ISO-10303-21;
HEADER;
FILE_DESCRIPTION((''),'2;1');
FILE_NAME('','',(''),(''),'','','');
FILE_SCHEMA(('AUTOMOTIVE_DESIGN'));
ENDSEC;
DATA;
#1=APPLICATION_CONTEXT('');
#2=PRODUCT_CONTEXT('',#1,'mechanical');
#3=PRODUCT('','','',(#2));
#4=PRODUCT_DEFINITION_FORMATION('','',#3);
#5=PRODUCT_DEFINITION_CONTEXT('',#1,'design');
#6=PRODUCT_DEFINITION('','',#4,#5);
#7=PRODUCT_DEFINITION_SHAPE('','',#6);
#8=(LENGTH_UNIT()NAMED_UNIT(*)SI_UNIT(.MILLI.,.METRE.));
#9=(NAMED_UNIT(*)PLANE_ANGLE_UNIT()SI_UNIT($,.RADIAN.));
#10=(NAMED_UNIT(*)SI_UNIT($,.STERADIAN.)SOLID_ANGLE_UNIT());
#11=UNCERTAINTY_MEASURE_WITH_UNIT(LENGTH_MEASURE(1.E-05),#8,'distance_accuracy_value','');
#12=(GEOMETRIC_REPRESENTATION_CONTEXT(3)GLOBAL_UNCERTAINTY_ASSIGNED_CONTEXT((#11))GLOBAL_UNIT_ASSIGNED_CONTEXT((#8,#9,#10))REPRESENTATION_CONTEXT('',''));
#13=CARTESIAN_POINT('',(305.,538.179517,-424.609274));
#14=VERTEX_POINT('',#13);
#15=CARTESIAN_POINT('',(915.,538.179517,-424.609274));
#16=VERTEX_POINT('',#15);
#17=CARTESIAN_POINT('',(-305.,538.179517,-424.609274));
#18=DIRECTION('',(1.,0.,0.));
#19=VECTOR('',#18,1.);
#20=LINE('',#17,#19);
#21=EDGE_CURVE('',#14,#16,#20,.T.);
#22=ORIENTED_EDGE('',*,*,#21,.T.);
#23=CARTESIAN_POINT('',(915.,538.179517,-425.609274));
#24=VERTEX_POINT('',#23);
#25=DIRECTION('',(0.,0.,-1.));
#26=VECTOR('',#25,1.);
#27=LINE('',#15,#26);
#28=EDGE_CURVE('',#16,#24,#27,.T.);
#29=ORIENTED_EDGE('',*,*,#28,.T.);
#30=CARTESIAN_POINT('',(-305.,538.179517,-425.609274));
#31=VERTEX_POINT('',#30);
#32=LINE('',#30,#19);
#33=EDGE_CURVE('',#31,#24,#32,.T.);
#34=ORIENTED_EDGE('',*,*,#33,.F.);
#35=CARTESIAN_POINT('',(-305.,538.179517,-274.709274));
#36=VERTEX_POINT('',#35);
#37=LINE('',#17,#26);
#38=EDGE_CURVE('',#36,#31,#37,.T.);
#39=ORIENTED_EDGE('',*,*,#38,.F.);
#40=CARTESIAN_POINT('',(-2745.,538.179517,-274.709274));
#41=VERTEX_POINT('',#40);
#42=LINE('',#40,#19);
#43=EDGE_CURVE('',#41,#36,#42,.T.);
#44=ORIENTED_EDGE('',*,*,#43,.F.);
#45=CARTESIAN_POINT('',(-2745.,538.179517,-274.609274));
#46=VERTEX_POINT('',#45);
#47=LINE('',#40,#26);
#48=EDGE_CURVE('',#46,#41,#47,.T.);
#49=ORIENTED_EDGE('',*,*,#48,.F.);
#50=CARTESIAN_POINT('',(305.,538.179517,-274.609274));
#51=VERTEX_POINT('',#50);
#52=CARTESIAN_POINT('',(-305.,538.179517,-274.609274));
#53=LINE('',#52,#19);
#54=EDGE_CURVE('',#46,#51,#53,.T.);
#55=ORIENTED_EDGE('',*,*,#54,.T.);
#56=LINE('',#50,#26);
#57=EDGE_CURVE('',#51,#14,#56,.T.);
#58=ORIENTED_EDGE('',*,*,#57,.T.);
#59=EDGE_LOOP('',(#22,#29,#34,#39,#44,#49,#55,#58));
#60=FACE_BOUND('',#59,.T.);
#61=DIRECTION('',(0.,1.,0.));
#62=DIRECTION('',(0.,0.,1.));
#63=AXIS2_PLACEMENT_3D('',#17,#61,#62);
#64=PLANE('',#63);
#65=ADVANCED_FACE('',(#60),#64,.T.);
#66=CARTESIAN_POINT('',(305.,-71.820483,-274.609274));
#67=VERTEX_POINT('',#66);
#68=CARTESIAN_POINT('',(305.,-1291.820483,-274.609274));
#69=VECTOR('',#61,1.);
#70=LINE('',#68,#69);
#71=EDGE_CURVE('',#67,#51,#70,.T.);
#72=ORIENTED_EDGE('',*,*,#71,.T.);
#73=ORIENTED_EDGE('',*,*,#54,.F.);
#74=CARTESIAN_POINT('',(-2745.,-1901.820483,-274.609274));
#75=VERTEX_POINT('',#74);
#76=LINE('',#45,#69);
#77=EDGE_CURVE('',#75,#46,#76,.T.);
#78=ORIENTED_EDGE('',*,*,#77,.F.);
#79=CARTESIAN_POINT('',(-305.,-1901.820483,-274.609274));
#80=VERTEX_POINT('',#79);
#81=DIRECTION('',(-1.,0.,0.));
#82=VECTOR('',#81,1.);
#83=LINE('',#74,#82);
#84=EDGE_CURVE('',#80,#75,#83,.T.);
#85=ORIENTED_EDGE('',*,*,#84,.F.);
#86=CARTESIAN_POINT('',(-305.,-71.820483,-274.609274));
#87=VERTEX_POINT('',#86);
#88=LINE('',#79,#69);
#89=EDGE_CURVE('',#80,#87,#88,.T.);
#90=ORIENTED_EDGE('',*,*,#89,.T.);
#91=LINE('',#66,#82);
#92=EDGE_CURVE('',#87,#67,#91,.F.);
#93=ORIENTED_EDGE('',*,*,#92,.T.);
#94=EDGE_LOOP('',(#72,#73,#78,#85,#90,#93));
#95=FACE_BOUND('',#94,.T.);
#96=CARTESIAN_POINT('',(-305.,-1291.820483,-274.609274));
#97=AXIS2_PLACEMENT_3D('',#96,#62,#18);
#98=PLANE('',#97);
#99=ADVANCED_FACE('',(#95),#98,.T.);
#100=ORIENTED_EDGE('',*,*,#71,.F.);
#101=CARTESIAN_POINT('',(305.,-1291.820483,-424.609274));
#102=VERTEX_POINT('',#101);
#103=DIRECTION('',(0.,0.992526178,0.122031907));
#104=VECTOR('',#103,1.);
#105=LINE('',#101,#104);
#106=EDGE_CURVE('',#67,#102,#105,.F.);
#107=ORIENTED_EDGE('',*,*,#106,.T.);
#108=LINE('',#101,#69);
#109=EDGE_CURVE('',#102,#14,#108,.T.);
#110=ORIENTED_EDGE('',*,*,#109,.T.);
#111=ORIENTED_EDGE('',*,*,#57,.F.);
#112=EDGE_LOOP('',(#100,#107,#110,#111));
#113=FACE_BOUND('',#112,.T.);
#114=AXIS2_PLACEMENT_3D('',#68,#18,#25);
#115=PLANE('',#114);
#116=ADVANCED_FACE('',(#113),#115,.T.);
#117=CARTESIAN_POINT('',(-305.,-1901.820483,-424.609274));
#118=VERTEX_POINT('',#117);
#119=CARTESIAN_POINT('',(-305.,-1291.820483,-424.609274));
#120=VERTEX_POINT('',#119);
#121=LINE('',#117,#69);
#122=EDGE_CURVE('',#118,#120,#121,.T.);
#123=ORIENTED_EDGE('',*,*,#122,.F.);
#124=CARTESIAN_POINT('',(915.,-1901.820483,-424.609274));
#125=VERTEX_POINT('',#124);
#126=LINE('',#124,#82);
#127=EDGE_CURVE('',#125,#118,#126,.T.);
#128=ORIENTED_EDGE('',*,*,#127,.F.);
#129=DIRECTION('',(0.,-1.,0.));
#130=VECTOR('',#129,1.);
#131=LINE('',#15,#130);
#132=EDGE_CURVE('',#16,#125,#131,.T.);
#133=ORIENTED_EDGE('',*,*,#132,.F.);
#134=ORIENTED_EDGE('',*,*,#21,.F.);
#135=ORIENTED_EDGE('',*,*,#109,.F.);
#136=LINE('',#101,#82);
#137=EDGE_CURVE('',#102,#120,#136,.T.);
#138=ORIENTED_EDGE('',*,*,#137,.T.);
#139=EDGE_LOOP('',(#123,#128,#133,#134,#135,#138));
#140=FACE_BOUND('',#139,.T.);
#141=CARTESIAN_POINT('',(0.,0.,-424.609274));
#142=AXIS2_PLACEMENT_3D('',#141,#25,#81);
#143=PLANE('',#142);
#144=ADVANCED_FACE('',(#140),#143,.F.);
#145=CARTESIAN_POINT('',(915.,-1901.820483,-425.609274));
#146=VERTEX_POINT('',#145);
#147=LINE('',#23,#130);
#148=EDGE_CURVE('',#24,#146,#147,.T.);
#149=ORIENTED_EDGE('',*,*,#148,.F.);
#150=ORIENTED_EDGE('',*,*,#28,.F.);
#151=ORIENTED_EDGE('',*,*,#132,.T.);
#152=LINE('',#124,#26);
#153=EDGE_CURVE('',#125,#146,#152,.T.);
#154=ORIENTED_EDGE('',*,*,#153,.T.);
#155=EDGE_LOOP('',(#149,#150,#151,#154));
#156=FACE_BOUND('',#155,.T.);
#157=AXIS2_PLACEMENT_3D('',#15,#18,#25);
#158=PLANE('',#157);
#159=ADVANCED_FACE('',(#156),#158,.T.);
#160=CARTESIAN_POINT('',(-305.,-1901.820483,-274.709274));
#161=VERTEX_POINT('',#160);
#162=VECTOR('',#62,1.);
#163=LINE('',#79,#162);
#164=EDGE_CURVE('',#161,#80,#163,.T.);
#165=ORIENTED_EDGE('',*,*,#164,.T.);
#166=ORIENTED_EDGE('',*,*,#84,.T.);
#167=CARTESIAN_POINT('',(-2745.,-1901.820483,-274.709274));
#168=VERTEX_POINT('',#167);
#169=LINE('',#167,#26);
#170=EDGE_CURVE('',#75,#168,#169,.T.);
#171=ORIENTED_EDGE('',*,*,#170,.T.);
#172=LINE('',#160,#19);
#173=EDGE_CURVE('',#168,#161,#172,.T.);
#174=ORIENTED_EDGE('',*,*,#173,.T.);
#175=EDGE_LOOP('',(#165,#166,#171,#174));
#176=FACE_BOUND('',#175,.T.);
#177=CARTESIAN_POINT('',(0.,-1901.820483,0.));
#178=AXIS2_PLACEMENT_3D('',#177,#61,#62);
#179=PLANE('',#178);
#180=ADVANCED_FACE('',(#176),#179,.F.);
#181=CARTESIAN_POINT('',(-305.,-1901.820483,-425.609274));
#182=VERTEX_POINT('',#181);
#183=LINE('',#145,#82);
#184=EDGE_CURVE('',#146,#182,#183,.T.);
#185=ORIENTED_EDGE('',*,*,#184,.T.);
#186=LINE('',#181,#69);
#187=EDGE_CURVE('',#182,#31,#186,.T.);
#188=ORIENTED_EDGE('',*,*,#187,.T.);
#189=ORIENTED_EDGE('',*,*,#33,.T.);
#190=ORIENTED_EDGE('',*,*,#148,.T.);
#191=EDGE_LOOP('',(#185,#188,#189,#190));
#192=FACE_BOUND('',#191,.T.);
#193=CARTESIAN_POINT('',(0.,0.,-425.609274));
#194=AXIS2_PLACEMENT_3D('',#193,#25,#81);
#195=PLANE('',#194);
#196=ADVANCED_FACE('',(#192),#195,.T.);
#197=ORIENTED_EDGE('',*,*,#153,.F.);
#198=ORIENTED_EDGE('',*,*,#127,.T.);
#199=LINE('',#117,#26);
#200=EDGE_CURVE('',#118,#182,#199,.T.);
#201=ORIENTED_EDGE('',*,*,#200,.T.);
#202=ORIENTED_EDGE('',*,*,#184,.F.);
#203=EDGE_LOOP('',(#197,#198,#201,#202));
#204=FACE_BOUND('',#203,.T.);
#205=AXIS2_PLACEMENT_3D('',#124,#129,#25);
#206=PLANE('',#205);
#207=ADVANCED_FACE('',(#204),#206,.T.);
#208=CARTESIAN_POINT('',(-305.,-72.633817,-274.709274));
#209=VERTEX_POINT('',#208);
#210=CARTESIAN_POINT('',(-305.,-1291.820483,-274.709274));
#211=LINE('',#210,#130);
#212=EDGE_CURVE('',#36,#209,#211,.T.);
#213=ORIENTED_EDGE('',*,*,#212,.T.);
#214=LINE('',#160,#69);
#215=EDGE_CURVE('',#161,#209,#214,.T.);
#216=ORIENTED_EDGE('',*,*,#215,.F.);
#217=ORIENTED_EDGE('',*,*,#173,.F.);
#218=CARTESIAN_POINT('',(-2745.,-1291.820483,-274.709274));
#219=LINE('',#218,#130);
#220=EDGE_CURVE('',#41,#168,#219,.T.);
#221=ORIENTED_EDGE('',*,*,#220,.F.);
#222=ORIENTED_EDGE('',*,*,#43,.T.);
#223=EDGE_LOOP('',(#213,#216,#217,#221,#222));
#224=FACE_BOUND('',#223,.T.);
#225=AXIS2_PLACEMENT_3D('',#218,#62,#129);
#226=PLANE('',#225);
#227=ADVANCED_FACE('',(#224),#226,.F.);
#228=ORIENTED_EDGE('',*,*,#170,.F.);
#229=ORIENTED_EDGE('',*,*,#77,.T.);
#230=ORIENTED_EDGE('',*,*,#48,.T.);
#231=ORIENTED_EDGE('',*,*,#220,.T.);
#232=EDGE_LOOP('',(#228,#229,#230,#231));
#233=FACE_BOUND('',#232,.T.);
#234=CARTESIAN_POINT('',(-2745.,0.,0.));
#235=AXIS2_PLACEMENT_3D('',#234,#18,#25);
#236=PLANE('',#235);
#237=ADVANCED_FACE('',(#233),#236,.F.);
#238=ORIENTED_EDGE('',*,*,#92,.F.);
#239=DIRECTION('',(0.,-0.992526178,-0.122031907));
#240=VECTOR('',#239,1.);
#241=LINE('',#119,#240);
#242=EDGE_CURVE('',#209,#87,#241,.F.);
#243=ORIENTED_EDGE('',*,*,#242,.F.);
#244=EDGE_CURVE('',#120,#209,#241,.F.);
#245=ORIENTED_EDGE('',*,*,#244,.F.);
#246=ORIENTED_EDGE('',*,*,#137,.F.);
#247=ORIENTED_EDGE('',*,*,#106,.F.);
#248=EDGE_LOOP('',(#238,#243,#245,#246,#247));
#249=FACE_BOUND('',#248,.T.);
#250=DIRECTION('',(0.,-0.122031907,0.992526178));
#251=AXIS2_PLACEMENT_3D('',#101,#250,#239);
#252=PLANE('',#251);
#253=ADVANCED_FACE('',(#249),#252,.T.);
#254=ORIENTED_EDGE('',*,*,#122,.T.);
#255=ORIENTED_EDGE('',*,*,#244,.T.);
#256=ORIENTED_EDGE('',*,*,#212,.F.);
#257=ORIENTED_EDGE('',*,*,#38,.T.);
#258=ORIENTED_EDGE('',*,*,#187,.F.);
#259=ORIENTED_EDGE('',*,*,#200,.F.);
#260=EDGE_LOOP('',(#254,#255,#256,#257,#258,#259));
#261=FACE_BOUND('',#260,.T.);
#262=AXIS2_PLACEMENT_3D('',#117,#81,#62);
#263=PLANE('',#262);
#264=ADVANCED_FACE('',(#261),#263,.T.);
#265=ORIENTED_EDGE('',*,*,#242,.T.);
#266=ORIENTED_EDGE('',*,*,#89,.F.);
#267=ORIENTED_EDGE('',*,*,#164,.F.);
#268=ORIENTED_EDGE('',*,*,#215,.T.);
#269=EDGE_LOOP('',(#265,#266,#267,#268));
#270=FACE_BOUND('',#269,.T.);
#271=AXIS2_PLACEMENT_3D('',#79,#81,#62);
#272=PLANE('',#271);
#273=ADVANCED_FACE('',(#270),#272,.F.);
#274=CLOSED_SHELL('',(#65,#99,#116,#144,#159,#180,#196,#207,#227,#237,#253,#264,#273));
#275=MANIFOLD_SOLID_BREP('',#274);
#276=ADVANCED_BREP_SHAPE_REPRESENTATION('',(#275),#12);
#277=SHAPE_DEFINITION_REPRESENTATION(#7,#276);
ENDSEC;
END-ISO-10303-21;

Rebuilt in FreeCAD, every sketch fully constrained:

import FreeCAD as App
import Part
import Sketcher
from FreeCAD import Vector
Q = App.Units.Quantity


def faces_at(feature, points):
    """Names of the faces that lie closest to the given points."""
    faces = feature.Shape.Faces
    near = lambda p: min(range(len(faces)), key=lambda i: faces[i].distToShape(Part.Vertex(*p))[0])
    return sorted({f"Face{near(p) + 1}" for p in points})

doc = App.newDocument("Part")
params = doc.addObject("Spreadsheet::Sheet", "Params")
for row, (alias, value) in enumerate([
    ("sketch1_width", "1220 mm"),
    ("sketch1_height", "2440 mm"),
    ("pad1_length", "1 mm"),
    ("sketch2_width", "610 mm"),
    ("sketch2_height", "150 mm"),
    ("pad2_length", "1830 mm"),
    ("sketch3_width", "1830 mm"),
    ("sketch3_height", "0.1 mm"),
    ("pad3_length", "2440 mm"),
    ("sketch4_width", "2440 mm"),
    ("sketch4_height", "0.1 mm"),
    ("pad4_length", "610 mm"),
    ("draft_angle", "82.990616 deg"),
], start=1):
    params.set(f"A{row}", alias)
    params.set(f"B{row}", "=" + value)
    params.setAlias(f"B{row}", alias)

body = doc.addObject("PartDesign::Body", "Body")

# Sketch on XY plane
sketch1 = body.newObject("Sketcher::SketchObject", "Sketch")
sketch1.AttachmentSupport = (doc.getObject("XY_Plane"), [""])
sketch1.MapMode = "FlatFace"
sketch1.AttachmentOffset = App.Placement(Vector(0, 0, -425.609274), App.Rotation())
sketch1.addGeometry([
    Part.LineSegment(Vector(915, 538, 0), Vector(915, -1902, 0)),
    Part.LineSegment(Vector(915, -1902, 0), Vector(-305, -1902, 0)),
    Part.LineSegment(Vector(-305, -1902, 0), Vector(-305, 538, 0)),
    Part.LineSegment(Vector(-305, 538, 0), Vector(915, 538, 0)),
], False)
sketch1.addConstraint([
    Sketcher.Constraint("Coincident", 0, 2, 1, 1),
    Sketcher.Constraint("Coincident", 1, 2, 2, 1),
    Sketcher.Constraint("Coincident", 2, 2, 3, 1),
    Sketcher.Constraint("Coincident", 3, 2, 0, 1),
    Sketcher.Constraint("Vertical", 0),
    Sketcher.Constraint("Horizontal", 1),
    Sketcher.Constraint("Vertical", 2),
    Sketcher.Constraint("Horizontal", 3),
    Sketcher.Constraint("DistanceX", 1, 2, 1, 1, Q("1220 mm")),
    Sketcher.Constraint("DistanceY", 0, 2, 0, 1, Q("2440 mm")),
    Sketcher.Constraint("DistanceX", -1, 1, 0, 2, Q("915 mm")),
    Sketcher.Constraint("DistanceY", 0, 2, -1, 1, Q("1901.820483 mm")),
])
sketch1.setExpression("Constraints[8]", "Params.sketch1_width")
sketch1.setExpression("Constraints[9]", "Params.sketch1_height")
pad1 = body.newObject("PartDesign::Pad", "Pad")
pad1.Profile = sketch1
pad1.setExpression("Length", "Params.pad1_length")

# Sketch on XZ plane
sketch2 = body.newObject("Sketcher::SketchObject", "Sketch001")
sketch2.AttachmentSupport = (doc.getObject("XZ_Plane"), [""])
sketch2.MapMode = "FlatFace"
sketch2.AttachmentOffset = App.Placement(Vector(0, 0, -538.179517), App.Rotation())
sketch2.addGeometry([
    Part.LineSegment(Vector(-305, -425, 0), Vector(-305, -275, 0)),
    Part.LineSegment(Vector(-305, -275, 0), Vector(305, -275, 0)),
    Part.LineSegment(Vector(305, -275, 0), Vector(305, -425, 0)),
    Part.LineSegment(Vector(305, -425, 0), Vector(-305, -425, 0)),
], False)
sketch2.addConstraint([
    Sketcher.Constraint("Coincident", 0, 2, 1, 1),
    Sketcher.Constraint("Coincident", 1, 2, 2, 1),
    Sketcher.Constraint("Coincident", 2, 2, 3, 1),
    Sketcher.Constraint("Coincident", 3, 2, 0, 1),
    Sketcher.Constraint("Vertical", 0),
    Sketcher.Constraint("Horizontal", 1),
    Sketcher.Constraint("Vertical", 2),
    Sketcher.Constraint("Horizontal", 3),
    Sketcher.Constraint("DistanceX", 1, 1, 1, 2, Q("610 mm")),
    Sketcher.Constraint("DistanceY", 0, 1, 0, 2, Q("150 mm")),
    Sketcher.Constraint("DistanceX", 0, 2, -1, 1, Q("305 mm")),
    Sketcher.Constraint("DistanceY", 0, 2, -1, 1, Q("274.609274 mm")),
])
sketch2.setExpression("Constraints[8]", "Params.sketch2_width")
sketch2.setExpression("Constraints[9]", "Params.sketch2_height")
pad2 = body.newObject("PartDesign::Pad", "Pad001")
pad2.Profile = sketch2
pad2.setExpression("Length", "Params.pad2_length")

# Sketch on YZ plane
sketch3 = body.newObject("Sketcher::SketchObject", "Sketch002")
sketch3.AttachmentSupport = (doc.getObject("YZ_Plane"), [""])
sketch3.MapMode = "FlatFace"
sketch3.AttachmentOffset = App.Placement(Vector(0, 0, -305), App.Rotation())
sketch3.addGeometry([
    Part.LineSegment(Vector(538.18, -274.71, 0), Vector(-1291.82, -274.71, 0)),
    Part.LineSegment(Vector(-1291.82, -274.71, 0), Vector(-1291.82, -274.61, 0)),
    Part.LineSegment(Vector(-1291.82, -274.61, 0), Vector(538.18, -274.61, 0)),
    Part.LineSegment(Vector(538.18, -274.61, 0), Vector(538.18, -274.71, 0)),
], False)
sketch3.addConstraint([
    Sketcher.Constraint("Coincident", 0, 2, 1, 1),
    Sketcher.Constraint("Coincident", 1, 2, 2, 1),
    Sketcher.Constraint("Coincident", 2, 2, 3, 1),
    Sketcher.Constraint("Coincident", 3, 2, 0, 1),
    Sketcher.Constraint("Horizontal", 0),
    Sketcher.Constraint("Vertical", 1),
    Sketcher.Constraint("Horizontal", 2),
    Sketcher.Constraint("Vertical", 3),
    Sketcher.Constraint("DistanceX", 0, 2, 0, 1, Q("1830 mm")),
    Sketcher.Constraint("DistanceY", 1, 1, 1, 2, Q("0.1 mm")),
    Sketcher.Constraint("DistanceX", 0, 2, -1, 1, Q("1291.820483 mm")),
    Sketcher.Constraint("DistanceY", 0, 2, -1, 1, Q("274.709274 mm")),
])
sketch3.setExpression("Constraints[8]", "Params.sketch3_width")
sketch3.setExpression("Constraints[9]", "Params.sketch3_height")
pad3 = body.newObject("PartDesign::Pad", "Pad002")
pad3.Profile = sketch3
pad3.setExpression("Length", "Params.pad3_length")
pad3.Reversed = True

# Sketch on XZ plane
sketch4 = body.newObject("Sketcher::SketchObject", "Sketch003")
sketch4.AttachmentSupport = (doc.getObject("XZ_Plane"), [""])
sketch4.MapMode = "FlatFace"
sketch4.AttachmentOffset = App.Placement(Vector(0, 0, 1291.820483), App.Rotation())
sketch4.addGeometry([
    Part.LineSegment(Vector(-2745, -274.61, 0), Vector(-2745, -274.71, 0)),
    Part.LineSegment(Vector(-2745, -274.71, 0), Vector(-305, -274.71, 0)),
    Part.LineSegment(Vector(-305, -274.71, 0), Vector(-305, -274.61, 0)),
    Part.LineSegment(Vector(-305, -274.61, 0), Vector(-2745, -274.61, 0)),
], False)
sketch4.addConstraint([
    Sketcher.Constraint("Coincident", 0, 2, 1, 1),
    Sketcher.Constraint("Coincident", 1, 2, 2, 1),
    Sketcher.Constraint("Coincident", 2, 2, 3, 1),
    Sketcher.Constraint("Coincident", 3, 2, 0, 1),
    Sketcher.Constraint("Vertical", 0),
    Sketcher.Constraint("Horizontal", 1),
    Sketcher.Constraint("Vertical", 2),
    Sketcher.Constraint("Horizontal", 3),
    Sketcher.Constraint("DistanceX", 1, 1, 1, 2, Q("2440 mm")),
    Sketcher.Constraint("DistanceY", 0, 2, 0, 1, Q("0.1 mm")),
    Sketcher.Constraint("DistanceX", 0, 2, -1, 1, Q("2745 mm")),
    Sketcher.Constraint("DistanceY", 0, 2, -1, 1, Q("274.709274 mm")),
])
sketch4.setExpression("Constraints[8]", "Params.sketch4_width")
sketch4.setExpression("Constraints[9]", "Params.sketch4_height")
pad4 = body.newObject("PartDesign::Pad", "Pad003")
pad4.Profile = sketch4
pad4.setExpression("Length", "Params.pad4_length")
doc.recompute()

datumplane = body.newObject("PartDesign::Plane", "DatumPlane")
datumplane.AttachmentSupport = (doc.getObject("XY_Plane"), [""])
datumplane.MapMode = "FlatFace"
datumplane.AttachmentOffset = App.Placement(Vector(0, 0, -424.609274), App.Rotation())
draft = body.newObject("PartDesign::Draft", "Draft")
draft.Base = (pad4, faces_at(pad4, [(0, -1291.82, -349.609)]))
draft.NeutralPlane = (datumplane, [""])
draft.setExpression("Angle", "Params.draft_angle")
draft.Reversed = False

doc.recompute()
